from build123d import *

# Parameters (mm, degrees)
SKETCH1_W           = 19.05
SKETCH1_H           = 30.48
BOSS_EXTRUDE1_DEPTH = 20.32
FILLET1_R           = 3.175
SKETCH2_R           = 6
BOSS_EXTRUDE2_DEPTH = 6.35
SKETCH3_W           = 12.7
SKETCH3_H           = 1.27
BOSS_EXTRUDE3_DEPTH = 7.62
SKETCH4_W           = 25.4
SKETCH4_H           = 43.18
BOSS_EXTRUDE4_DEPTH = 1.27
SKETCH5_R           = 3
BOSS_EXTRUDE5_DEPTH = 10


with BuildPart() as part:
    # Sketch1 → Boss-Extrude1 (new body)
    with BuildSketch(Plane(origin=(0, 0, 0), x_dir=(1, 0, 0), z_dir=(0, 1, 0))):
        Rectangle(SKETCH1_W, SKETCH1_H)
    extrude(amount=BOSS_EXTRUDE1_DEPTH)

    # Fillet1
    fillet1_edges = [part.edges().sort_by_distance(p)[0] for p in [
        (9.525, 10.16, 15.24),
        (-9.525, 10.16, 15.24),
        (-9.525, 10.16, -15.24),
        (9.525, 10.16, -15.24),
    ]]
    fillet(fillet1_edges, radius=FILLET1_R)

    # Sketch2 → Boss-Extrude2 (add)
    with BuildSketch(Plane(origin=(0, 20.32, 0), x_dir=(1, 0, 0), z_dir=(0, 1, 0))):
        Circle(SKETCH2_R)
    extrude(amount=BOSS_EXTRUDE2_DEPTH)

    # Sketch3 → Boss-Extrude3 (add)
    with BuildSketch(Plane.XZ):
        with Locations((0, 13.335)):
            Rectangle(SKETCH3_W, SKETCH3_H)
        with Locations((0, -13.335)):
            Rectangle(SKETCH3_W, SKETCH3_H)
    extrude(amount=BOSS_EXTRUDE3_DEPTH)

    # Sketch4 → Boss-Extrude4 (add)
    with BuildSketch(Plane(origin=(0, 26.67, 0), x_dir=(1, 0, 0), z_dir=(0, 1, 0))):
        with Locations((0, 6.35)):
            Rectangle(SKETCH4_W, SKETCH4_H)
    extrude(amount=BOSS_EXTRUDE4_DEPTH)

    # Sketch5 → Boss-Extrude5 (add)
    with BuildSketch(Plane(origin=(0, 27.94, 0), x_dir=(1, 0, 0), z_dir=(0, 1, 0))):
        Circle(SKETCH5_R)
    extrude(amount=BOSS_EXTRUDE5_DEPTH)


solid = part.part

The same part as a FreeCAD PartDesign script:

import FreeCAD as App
import Part
import Sketcher
Q = App.Units.Quantity


def edges_at(feature, points):
    """Names of the edges that pass closest to the given points."""
    edges = feature.Shape.Edges
    near = lambda p: min(range(len(edges)), key=lambda i: edges[i].distToShape(Part.Vertex(*p))[0])
    return sorted({f"Edge{near(p) + 1}" for p in points})


def add_polygon(sketch, points):
    """Adds a closed chain of lines whose ends are joined by coincident constraints."""
    first, n = sketch.GeometryCount, len(points)
    for a, b in zip(points, points[1:] + points[:1]):
        sketch.addGeometry(Part.LineSegment(App.Vector(*a, 0), App.Vector(*b, 0)), False)
    for i in range(n):
        sketch.addConstraint(Sketcher.Constraint("Coincident", first + i, 2, first + (i + 1) % n, 1))

doc = App.newDocument("Part")
body = doc.addObject("PartDesign::Body", "Body")

sketch1 = body.newObject("Sketcher::SketchObject", "Sketch")
sketch1.AttachmentSupport = (doc.getObject("XZ_Plane"), [""])
sketch1.MapMode = "FlatFace"
add_polygon(sketch1, [(-10, -15), (-10, 15), (10, 15), (10, -15)])
sketch1.addConstraint(Sketcher.Constraint("Vertical", 0))
sketch1.addConstraint(Sketcher.Constraint("Horizontal", 1))
sketch1.addConstraint(Sketcher.Constraint("Vertical", 2))
sketch1.addConstraint(Sketcher.Constraint("Horizontal", 3))
sketch1.addConstraint(Sketcher.Constraint("Symmetric", 0, 2, 2, 2, -1, 1))
sketch1.addConstraint(Sketcher.Constraint("DistanceY", 0, 1, 0, 2, Q("1.2 in")))
sketch1.addConstraint(Sketcher.Constraint("DistanceX", 1, 1, 1, 2, Q("0.75 in")))
pad1 = body.newObject("PartDesign::Pad", "Pad")
pad1.Profile = sketch1
pad1.Length = Q("0.8 in")
pad1.Reversed = True
doc.recompute()

fillet = body.newObject("PartDesign::Fillet", "Fillet")
fillet.Base = (pad1, edges_at(pad1, [
    (9.525, 10.16, 15.24),
    (-9.525, 10.16, 15.24),
    (-9.525, 10.16, -15.24),
    (9.525, 10.16, -15.24),
]))
fillet.Radius = Q("0.125 in")

sketch2 = body.newObject("Sketcher::SketchObject", "Sketch001")
sketch2.AttachmentSupport = (doc.getObject("XZ_Plane"), [""])
sketch2.MapMode = "FlatFace"
sketch2.AttachmentOffset = App.Placement(App.Vector(0, 0, -0.8 * 25.4), App.Rotation())
sketch2.addGeometry(Part.Circle(App.Vector(0, 0, 0), App.Vector(0, 0, 1), 6), False)
sketch2.addConstraint(Sketcher.Constraint("Coincident", 0, 3, -1, 1))
sketch2.addConstraint(Sketcher.Constraint("Diameter", 0, Q("12 mm")))
pad2 = body.newObject("PartDesign::Pad", "Pad001")
pad2.Profile = sketch2
pad2.Length = Q("0.25 in")
pad2.Reversed = True

sketch3 = body.newObject("Sketcher::SketchObject", "Sketch002")
sketch3.AttachmentSupport = (doc.getObject("XZ_Plane"), [""])
sketch3.MapMode = "FlatFace"
add_polygon(sketch3, [(-6.3, 14), (-6.3, 12.7), (6.3, 12.7), (6.3, 14)])
add_polygon(sketch3, [(-6.3, -12.7), (-6.3, -14), (6.3, -14), (6.3, -12.7)])
sketch3.addConstraint(Sketcher.Constraint("Vertical", 0))
sketch3.addConstraint(Sketcher.Constraint("Horizontal", 1))
sketch3.addConstraint(Sketcher.Constraint("Vertical", 2))
sketch3.addConstraint(Sketcher.Constraint("Horizontal", 3))
sketch3.addConstraint(Sketcher.Constraint("Vertical", 4))
sketch3.addConstraint(Sketcher.Constraint("Horizontal", 5))
sketch3.addConstraint(Sketcher.Constraint("Vertical", 6))
sketch3.addConstraint(Sketcher.Constraint("Horizontal", 7))
sketch3.addConstraint(Sketcher.Constraint("Symmetric", 2, 2, 4, 2, -1, 1))
sketch3.addConstraint(Sketcher.Constraint("Symmetric", 0, 2, 6, 2, -1, 1))
sketch3.addConstraint(Sketcher.Constraint("Vertical", 3, 2, 4, 2))
sketch3.addConstraint(Sketcher.Constraint("DistanceX", 1, 1, 1, 2, Q("0.5 in")))
sketch3.addConstraint(Sketcher.Constraint("DistanceY", 6, 2, 1, 2, Q("1 in")))
sketch3.addConstraint(Sketcher.Constraint("DistanceY", 0, 2, 0, 1, Q("0.05 in")))
pad3 = body.newObject("PartDesign::Pad", "Pad002")
pad3.Profile = sketch3
pad3.Length = Q("0.3 in")

sketch4 = body.newObject("Sketcher::SketchObject", "Sketch003")
sketch4.AttachmentSupport = (doc.getObject("XZ_Plane"), [""])
sketch4.MapMode = "FlatFace"
sketch4.AttachmentOffset = App.Placement(App.Vector(0, 0, -1.05 * 25.4), App.Rotation())
add_polygon(sketch4, [(-13, -28), (-13, 15), (13, 15), (13, -28)])
sketch4.addConstraint(Sketcher.Constraint("Vertical", 0))
sketch4.addConstraint(Sketcher.Constraint("Horizontal", 1))
sketch4.addConstraint(Sketcher.Constraint("Vertical", 2))
sketch4.addConstraint(Sketcher.Constraint("Horizontal", 3))
sketch4.addConstraint(Sketcher.Constraint("DistanceX", 1, 1, 1, 2, Q("1 in")))
sketch4.addConstraint(Sketcher.Constraint("DistanceY", 0, 1, 0, 2, Q("1.7 in")))
sketch4.addConstraint(Sketcher.Constraint("DistanceX", 0, 2, -1, 1, Q("0.5 in")))
sketch4.addConstraint(Sketcher.Constraint("DistanceY", -1, 1, 0, 2, Q("0.6 in")))
pad4 = body.newObject("PartDesign::Pad", "Pad003")
pad4.Profile = sketch4
pad4.Length = Q("0.05 in")
pad4.Reversed = True

sketch5 = body.newObject("Sketcher::SketchObject", "Sketch004")
sketch5.AttachmentSupport = (doc.getObject("XZ_Plane"), [""])
sketch5.MapMode = "FlatFace"
sketch5.AttachmentOffset = App.Placement(App.Vector(0, 0, -1.1 * 25.4), App.Rotation())
sketch5.addGeometry(Part.Circle(App.Vector(0, 0, 0), App.Vector(0, 0, 1), 3), False)
sketch5.addConstraint(Sketcher.Constraint("Coincident", 0, 3, -1, 1))
sketch5.addConstraint(Sketcher.Constraint("Diameter", 0, Q("6 mm")))
pad5 = body.newObject("PartDesign::Pad", "Pad004")
pad5.Profile = sketch5
pad5.Length = 10
pad5.Reversed = True

doc.recompute()
